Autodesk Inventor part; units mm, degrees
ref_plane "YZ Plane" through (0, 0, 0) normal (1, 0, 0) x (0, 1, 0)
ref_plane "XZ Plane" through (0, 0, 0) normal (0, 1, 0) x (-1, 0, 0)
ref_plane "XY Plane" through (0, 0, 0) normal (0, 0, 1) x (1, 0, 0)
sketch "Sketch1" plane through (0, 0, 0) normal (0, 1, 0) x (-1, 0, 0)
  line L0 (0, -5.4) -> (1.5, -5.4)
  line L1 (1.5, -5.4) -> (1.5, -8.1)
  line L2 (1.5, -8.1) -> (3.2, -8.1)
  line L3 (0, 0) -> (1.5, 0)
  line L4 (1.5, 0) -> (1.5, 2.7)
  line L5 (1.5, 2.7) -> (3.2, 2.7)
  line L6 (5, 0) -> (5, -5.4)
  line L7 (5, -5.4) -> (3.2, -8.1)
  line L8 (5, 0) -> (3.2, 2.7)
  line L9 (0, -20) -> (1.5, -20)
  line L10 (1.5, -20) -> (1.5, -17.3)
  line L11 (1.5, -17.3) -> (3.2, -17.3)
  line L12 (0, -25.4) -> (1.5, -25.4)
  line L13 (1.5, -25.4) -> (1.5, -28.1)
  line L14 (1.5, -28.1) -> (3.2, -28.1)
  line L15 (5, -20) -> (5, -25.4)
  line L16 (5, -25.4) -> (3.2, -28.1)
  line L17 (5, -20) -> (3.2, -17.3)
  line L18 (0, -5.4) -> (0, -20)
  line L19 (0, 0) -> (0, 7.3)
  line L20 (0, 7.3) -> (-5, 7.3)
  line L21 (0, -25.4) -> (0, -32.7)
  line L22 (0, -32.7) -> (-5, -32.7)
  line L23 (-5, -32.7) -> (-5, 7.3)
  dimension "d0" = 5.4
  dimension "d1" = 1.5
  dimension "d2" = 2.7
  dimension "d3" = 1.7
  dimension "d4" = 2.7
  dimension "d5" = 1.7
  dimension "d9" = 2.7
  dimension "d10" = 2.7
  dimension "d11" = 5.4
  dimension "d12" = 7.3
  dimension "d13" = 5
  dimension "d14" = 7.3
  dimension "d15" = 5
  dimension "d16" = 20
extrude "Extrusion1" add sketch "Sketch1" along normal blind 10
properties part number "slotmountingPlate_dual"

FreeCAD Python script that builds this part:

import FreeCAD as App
import Part
import Sketcher
from FreeCAD import Vector


def add_polygon(sketch, points):
    """Adds a closed chain of lines whose ends are joined by coincident constraints."""
    first, n = sketch.GeometryCount, len(points)
    for a, b in zip(points, points[1:] + points[:1]):
        sketch.addGeometry(Part.LineSegment(App.Vector(*a, 0), App.Vector(*b, 0)), False)
    for i in range(n):
        sketch.addConstraint(Sketcher.Constraint("Coincident", first + i, 2, first + (i + 1) % n, 1))

doc = App.newDocument("Part")
body = doc.addObject("PartDesign::Body", "Body")

sketch1 = body.newObject("Sketcher::SketchObject", "Sketch")
sketch1.AttachmentSupport = (doc.getObject("XZ_Plane"), [""])
sketch1.MapMode = "FlatFace"
add_polygon(sketch1, [(0, -20), (0, -5.4), (-1.5, -5.4), (-1.5, -8.1), (-3.2, -8.1), (-5, -5.4), (-5, 0), (-3.2, 2.7), (-1.5, 2.7), (-1.5, 0), (0, 0), (0, 7.3), (5, 7.3), (5, -32.7), (0, -32.7), (0, -25.4), (-1.5, -25.4), (-1.5, -28.1), (-3.2, -28.1), (-5, -25.4), (-5, -20), (-3.2, -17.3), (-1.5, -17.3), (-1.5, -20)])
sketch1.addConstraint([
    Sketcher.Constraint("Vertical", 0),
    Sketcher.Constraint("Horizontal", 1),
    Sketcher.Constraint("Vertical", 2),
    Sketcher.Constraint("Horizontal", 3),
    Sketcher.Constraint("Vertical", 5),
    Sketcher.Constraint("Horizontal", 7),
    Sketcher.Constraint("Vertical", 8),
    Sketcher.Constraint("Horizontal", 9),
    Sketcher.Constraint("Vertical", 10),
    Sketcher.Constraint("Horizontal", 11),
    Sketcher.Constraint("Vertical", 12),
    Sketcher.Constraint("Horizontal", 13),
    Sketcher.Constraint("Vertical", 14),
    Sketcher.Constraint("Horizontal", 15),
    Sketcher.Constraint("Vertical", 16),
    Sketcher.Constraint("Horizontal", 17),
    Sketcher.Constraint("Vertical", 19),
    Sketcher.Constraint("Horizontal", 21),
    Sketcher.Constraint("Vertical", 22),
    Sketcher.Constraint("Horizontal", 23),
    Sketcher.Constraint("Coincident", 9, 2, -1, 1),
    Sketcher.Constraint("PointOnObject", 0, 2, -2),
    Sketcher.Constraint("PointOnObject", 5, 2, -1),
    Sketcher.Constraint("PointOnObject", 13, 2, -2),
    Sketcher.Constraint("Parallel", 4, 18),
    Sketcher.Constraint("Parallel", 6, 20),
    Sketcher.Constraint("Horizontal", 1, 2, 4, 2),
    Sketcher.Constraint("Horizontal", 15, 2, 18, 2),
    Sketcher.Constraint("Horizontal", 19, 2, 22, 2),
    Sketcher.Constraint("Vertical", 3, 2, 6, 2),
    Sketcher.Constraint("Vertical", 2, 2, 7, 2),
    Sketcher.Constraint("Vertical", 8, 2, 15, 2),
    Sketcher.Constraint("Vertical", 6, 2, 17, 2),
    Sketcher.Constraint("Vertical", 5, 2, 18, 2),
    Sketcher.Constraint("Vertical", 17, 2, 20, 2),
    Sketcher.Constraint("Vertical", 16, 2, 21, 2),
    Sketcher.Constraint("Equal", 2, 8),
    Sketcher.Constraint("Equal", 10, 14),
    Sketcher.Constraint("Equal", 5, 19),
    Sketcher.Constraint("DistanceX", 11, 1, 11, 2, 5.0),
    Sketcher.Constraint("DistanceX", 1, 2, 1, 1, 1.5),
    Sketcher.Constraint("DistanceX", 3, 2, 3, 1, 1.7),
    Sketcher.Constraint("DistanceY", 2, 2, 2, 1, 2.7),
    Sketcher.Constraint("DistanceY", 5, 1, 5, 2, 5.4),
    Sketcher.Constraint("DistanceY", 10, 1, 10, 2, 7.3),
    Sketcher.Constraint("DistanceX", 4, 2, -1, 1, 5.0),
    Sketcher.Constraint("DistanceY", 19, 2, -1, 1, 20.0),
])
pad1 = body.newObject("PartDesign::Pad", "Pad")
pad1.Profile = sketch1
pad1.Length = 10
pad1.Reversed = True

doc.recompute()
